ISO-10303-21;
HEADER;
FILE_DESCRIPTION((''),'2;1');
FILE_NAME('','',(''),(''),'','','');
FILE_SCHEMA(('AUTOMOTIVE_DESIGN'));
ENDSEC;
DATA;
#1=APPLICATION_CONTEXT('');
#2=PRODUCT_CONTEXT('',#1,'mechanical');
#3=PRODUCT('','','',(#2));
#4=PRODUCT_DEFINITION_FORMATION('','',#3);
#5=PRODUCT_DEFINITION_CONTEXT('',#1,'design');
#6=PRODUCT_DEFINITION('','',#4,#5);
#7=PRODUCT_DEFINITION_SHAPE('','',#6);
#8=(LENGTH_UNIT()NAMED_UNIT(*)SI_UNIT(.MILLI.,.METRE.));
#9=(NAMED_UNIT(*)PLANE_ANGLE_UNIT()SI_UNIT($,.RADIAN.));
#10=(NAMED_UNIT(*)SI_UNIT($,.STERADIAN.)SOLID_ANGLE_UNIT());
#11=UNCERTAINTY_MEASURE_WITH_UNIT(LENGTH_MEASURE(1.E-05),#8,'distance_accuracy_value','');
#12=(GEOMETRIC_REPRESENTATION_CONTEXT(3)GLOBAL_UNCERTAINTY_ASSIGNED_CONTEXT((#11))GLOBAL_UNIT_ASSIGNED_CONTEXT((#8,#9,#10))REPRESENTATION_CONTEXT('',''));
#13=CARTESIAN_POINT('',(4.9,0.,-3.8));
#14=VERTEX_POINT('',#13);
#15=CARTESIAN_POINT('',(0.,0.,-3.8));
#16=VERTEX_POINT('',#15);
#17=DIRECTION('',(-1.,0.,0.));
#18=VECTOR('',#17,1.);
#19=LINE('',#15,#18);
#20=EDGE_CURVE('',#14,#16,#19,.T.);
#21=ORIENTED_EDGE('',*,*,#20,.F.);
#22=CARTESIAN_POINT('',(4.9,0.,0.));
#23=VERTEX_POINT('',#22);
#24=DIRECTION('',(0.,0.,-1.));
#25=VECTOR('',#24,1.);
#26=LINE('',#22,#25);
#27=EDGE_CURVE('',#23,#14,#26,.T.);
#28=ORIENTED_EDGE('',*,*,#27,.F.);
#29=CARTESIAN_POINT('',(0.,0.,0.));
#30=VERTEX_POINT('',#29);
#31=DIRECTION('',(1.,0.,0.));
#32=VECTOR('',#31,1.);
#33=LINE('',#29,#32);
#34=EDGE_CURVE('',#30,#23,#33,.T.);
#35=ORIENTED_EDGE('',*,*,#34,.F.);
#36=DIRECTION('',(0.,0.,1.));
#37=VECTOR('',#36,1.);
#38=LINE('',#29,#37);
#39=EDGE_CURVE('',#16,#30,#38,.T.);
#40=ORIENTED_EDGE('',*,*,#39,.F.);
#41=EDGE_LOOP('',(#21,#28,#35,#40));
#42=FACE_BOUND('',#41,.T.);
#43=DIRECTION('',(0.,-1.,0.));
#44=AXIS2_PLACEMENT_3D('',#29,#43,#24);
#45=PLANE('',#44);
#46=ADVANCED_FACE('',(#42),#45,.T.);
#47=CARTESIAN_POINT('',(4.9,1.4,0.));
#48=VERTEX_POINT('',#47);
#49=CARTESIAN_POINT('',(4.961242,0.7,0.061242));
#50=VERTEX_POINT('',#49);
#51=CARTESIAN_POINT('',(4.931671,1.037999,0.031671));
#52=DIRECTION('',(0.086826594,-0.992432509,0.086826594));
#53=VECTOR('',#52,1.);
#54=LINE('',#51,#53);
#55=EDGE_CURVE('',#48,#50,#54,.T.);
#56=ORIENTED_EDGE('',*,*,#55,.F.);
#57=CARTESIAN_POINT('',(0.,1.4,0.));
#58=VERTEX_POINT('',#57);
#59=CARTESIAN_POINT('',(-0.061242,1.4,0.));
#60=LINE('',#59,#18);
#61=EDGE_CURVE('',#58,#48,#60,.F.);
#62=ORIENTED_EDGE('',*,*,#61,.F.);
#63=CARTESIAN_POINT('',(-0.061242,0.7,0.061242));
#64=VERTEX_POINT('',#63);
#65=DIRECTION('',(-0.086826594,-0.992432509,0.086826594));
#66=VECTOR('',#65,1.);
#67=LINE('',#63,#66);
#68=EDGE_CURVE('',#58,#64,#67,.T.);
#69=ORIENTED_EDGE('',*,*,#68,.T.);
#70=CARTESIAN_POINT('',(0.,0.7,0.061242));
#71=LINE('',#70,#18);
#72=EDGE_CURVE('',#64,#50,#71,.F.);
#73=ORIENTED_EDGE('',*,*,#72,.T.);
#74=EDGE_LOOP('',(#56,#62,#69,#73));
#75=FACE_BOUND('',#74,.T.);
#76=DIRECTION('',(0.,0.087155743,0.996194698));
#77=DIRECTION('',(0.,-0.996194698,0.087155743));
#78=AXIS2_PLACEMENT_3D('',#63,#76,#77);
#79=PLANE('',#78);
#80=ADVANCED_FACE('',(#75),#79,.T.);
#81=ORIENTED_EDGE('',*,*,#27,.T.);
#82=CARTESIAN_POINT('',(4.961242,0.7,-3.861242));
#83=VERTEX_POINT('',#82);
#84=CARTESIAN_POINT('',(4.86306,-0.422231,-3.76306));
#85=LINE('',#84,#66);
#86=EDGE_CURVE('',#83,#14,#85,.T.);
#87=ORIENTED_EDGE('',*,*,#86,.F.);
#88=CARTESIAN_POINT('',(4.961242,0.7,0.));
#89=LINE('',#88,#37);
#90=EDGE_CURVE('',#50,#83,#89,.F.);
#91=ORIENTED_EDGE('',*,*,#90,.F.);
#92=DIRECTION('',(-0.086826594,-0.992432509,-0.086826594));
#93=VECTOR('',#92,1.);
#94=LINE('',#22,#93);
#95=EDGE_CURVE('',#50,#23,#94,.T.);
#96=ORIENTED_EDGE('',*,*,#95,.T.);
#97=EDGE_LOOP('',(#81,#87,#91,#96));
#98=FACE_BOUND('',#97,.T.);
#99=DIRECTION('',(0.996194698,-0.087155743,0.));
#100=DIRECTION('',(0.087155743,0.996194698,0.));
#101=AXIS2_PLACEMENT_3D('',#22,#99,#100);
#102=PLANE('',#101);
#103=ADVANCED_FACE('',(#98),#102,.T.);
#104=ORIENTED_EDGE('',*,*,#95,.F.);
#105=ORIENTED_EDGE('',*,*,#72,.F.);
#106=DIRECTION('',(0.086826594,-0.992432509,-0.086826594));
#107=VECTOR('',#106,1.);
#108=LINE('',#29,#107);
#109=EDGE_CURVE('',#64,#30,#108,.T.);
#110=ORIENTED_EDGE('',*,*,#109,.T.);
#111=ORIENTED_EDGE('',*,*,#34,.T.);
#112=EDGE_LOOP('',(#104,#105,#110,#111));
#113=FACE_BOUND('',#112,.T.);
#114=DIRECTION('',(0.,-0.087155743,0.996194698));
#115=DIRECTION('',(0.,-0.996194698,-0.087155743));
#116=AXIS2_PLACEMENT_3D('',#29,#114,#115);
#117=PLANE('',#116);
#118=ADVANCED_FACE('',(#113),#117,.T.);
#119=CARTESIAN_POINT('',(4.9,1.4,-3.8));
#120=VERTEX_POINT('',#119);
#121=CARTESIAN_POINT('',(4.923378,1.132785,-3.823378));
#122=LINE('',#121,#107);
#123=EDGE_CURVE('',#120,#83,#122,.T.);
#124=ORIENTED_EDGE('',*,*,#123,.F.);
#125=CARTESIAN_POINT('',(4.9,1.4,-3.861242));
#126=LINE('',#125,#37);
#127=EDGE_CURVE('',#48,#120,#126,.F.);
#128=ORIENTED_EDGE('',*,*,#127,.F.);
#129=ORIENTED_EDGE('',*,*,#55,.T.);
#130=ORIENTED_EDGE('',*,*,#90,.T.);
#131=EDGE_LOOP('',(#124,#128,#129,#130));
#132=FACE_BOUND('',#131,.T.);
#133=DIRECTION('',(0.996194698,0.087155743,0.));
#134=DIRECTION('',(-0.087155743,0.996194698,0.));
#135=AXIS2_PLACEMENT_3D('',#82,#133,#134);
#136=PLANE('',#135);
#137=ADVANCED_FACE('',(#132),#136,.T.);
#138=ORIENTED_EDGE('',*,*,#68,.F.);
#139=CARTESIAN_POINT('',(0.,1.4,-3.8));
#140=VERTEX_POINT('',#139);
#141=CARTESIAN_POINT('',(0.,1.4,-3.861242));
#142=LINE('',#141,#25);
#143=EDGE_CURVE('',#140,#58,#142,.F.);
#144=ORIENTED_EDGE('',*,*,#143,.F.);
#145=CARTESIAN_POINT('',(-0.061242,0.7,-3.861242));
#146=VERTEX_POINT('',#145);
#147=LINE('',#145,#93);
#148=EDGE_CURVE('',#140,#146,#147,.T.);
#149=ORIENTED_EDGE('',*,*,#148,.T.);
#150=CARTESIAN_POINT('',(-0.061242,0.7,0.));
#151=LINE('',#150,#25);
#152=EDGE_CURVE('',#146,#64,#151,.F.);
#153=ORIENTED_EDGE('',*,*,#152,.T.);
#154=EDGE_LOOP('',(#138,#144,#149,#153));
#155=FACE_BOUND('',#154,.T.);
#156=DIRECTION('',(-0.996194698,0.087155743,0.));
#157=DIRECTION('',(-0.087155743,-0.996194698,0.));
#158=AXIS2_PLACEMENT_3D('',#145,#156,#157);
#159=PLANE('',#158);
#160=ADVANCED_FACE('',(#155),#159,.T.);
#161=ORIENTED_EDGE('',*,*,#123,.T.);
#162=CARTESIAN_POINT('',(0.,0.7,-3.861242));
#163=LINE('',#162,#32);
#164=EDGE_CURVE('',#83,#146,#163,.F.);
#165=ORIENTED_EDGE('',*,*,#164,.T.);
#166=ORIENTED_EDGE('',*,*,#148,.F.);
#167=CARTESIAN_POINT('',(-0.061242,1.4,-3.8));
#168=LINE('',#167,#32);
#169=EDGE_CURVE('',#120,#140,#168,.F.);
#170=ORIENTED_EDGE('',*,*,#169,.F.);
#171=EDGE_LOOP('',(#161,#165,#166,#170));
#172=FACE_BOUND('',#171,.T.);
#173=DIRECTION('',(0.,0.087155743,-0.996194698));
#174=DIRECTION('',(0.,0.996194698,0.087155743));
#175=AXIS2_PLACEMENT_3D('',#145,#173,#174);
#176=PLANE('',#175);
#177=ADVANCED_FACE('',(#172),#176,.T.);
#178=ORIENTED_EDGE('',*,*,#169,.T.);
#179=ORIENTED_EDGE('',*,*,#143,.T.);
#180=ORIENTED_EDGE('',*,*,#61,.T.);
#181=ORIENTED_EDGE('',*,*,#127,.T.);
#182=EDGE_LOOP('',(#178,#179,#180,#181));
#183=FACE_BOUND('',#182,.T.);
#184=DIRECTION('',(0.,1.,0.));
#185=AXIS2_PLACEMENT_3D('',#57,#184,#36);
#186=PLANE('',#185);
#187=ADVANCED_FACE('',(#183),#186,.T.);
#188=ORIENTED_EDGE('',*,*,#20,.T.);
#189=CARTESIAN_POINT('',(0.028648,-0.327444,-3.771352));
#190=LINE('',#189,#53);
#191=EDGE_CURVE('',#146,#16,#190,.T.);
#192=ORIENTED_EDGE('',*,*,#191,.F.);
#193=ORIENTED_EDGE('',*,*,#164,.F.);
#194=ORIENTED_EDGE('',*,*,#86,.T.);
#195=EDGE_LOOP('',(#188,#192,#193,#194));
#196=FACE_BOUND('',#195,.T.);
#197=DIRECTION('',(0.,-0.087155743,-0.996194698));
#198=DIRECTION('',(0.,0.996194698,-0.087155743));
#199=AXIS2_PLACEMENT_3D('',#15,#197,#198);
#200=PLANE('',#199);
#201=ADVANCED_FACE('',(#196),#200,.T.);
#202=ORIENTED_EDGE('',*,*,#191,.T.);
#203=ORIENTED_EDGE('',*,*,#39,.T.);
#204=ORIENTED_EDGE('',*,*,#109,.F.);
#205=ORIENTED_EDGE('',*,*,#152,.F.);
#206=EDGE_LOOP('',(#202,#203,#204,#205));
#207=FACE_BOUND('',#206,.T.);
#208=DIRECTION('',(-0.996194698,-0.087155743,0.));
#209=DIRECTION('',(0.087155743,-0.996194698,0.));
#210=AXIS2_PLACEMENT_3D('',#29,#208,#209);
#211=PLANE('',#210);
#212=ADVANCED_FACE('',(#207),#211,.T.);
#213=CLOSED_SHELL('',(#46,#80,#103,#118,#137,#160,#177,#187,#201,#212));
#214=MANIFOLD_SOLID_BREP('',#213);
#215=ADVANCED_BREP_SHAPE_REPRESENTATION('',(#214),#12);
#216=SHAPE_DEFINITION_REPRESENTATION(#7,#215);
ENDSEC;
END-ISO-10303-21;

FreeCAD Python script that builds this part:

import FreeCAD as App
import Part
import Sketcher
from FreeCAD import Vector
Q = App.Units.Quantity

doc = App.newDocument("Part")
params = doc.addObject("Spreadsheet::Sheet", "Params")
for row, (alias, value) in enumerate([
    ("sketch1_width", "4.9 mm"),
    ("sketch1_height", "3.8 mm"),
    ("pad1_length", "0.7 mm"),
    ("pad1_taper", "5 deg"),
    ("pad2_length", "0.7 mm"),
    ("pad2_taper", "-5 deg"),
], start=1):
    params.set(f"A{row}", alias)
    params.set(f"B{row}", "=" + value)
    params.setAlias(f"B{row}", alias)

body = doc.addObject("PartDesign::Body", "Body")

# Sketch on XZ plane
sketch1 = body.newObject("Sketcher::SketchObject", "Sketch")
sketch1.AttachmentSupport = (doc.getObject("XZ_Plane"), [""])
sketch1.MapMode = "FlatFace"
sketch1.addGeometry([
    Part.LineSegment(Vector(0, -3.8, 0), Vector(0, 0, 0)),
    Part.LineSegment(Vector(0, 0, 0), Vector(4.9, 0, 0)),
    Part.LineSegment(Vector(4.9, 0, 0), Vector(4.9, -3.8, 0)),
    Part.LineSegment(Vector(4.9, -3.8, 0), Vector(0, -3.8, 0)),
], False)
sketch1.addConstraint([
    Sketcher.Constraint("Coincident", 0, 2, 1, 1),
    Sketcher.Constraint("Coincident", 1, 2, 2, 1),
    Sketcher.Constraint("Coincident", 2, 2, 3, 1),
    Sketcher.Constraint("Coincident", 3, 2, 0, 1),
    Sketcher.Constraint("Vertical", 0),
    Sketcher.Constraint("Horizontal", 1),
    Sketcher.Constraint("Vertical", 2),
    Sketcher.Constraint("Horizontal", 3),
    Sketcher.Constraint("Coincident", 0, 2, -1, 1),
    Sketcher.Constraint("DistanceX", 1, 1, 1, 2, Q("4.9 mm")),
    Sketcher.Constraint("DistanceY", 0, 1, 0, 2, Q("3.8 mm")),
])
sketch1.setExpression("Constraints[9]", "Params.sketch1_width")
sketch1.setExpression("Constraints[10]", "Params.sketch1_height")
pad1 = body.newObject("PartDesign::Pad", "Pad")
pad1.Profile = sketch1
pad1.setExpression("Length", "Params.pad1_length")
pad1.Reversed = True
pad1.setExpression("TaperAngle", "Params.pad1_taper")

# Sketch on XZ plane
sketch2 = body.newObject("Sketcher::SketchObject", "Sketch001")
sketch2.AttachmentSupport = (doc.getObject("XZ_Plane"), [""])
sketch2.MapMode = "FlatFace"
sketch2.AttachmentOffset = App.Placement(Vector(0, 0, -0.7), App.Rotation())
sketch2.addGeometry([
    Part.LineSegment(Vector(-0.1, -3.9, 0), Vector(-0.1, 0.1, 0)),
    Part.LineSegment(Vector(-0.1, 0.1, 0), Vector(5, 0.1, 0)),
    Part.LineSegment(Vector(5, 0.1, 0), Vector(5, -3.9, 0)),
    Part.LineSegment(Vector(5, -3.9, 0), Vector(-0.1, -3.9, 0)),
], False)
sketch2.addConstraint([
    Sketcher.Constraint("Coincident", 0, 2, 1, 1),
    Sketcher.Constraint("Coincident", 1, 2, 2, 1),
    Sketcher.Constraint("Coincident", 2, 2, 3, 1),
    Sketcher.Constraint("Coincident", 3, 2, 0, 1),
    Sketcher.Constraint("Vertical", 0),
    Sketcher.Constraint("Horizontal", 1),
    Sketcher.Constraint("Vertical", 2),
    Sketcher.Constraint("Horizontal", 3),
    Sketcher.Constraint("DistanceX", 1, 1, 1, 2, Q("5.022484 mm")),
    Sketcher.Constraint("DistanceY", 0, 1, 0, 2, Q("3.922484 mm")),
    Sketcher.Constraint("DistanceX", 0, 2, -1, 1, Q("0.061242 mm")),
    Sketcher.Constraint("DistanceY", -1, 1, 0, 2, Q("0.061242 mm")),
])
pad2 = body.newObject("PartDesign::Pad", "Pad001")
pad2.Profile = sketch2
pad2.setExpression("Length", "Params.pad2_length")
pad2.Reversed = True
pad2.setExpression("TaperAngle", "Params.pad2_taper")

doc.recompute()
